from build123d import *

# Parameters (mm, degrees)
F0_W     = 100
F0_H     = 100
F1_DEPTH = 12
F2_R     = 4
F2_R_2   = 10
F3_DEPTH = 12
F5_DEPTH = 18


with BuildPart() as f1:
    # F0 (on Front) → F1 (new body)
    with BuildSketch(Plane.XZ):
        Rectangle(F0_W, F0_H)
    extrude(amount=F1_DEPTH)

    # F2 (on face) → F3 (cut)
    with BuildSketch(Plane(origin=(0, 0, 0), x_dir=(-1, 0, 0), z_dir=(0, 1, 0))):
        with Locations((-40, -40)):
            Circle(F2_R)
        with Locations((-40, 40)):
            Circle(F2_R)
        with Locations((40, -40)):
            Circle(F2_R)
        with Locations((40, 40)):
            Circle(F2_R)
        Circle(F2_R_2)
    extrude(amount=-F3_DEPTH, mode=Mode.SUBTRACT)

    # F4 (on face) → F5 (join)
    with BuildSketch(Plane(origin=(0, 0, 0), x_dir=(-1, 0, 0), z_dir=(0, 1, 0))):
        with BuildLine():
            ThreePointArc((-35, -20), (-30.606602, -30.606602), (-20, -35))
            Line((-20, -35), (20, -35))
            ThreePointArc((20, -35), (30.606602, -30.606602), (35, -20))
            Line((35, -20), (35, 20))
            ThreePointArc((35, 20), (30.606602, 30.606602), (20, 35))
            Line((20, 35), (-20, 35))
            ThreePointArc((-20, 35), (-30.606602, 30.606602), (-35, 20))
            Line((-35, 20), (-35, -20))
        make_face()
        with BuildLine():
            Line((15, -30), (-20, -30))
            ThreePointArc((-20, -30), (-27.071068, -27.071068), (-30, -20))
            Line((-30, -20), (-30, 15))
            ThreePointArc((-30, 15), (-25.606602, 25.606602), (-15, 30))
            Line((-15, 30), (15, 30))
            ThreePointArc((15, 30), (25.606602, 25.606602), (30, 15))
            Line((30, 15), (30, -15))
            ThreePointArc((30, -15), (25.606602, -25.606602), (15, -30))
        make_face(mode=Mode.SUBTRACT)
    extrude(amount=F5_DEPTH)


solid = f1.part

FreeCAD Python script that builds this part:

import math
import FreeCAD as App
import Part
import Sketcher
from FreeCAD import Vector


def add_polygon(sketch, points):
    """Adds a closed chain of lines whose ends are joined by coincident constraints."""
    first, n = sketch.GeometryCount, len(points)
    for a, b in zip(points, points[1:] + points[:1]):
        sketch.addGeometry(Part.LineSegment(App.Vector(*a, 0), App.Vector(*b, 0)), False)
    for i in range(n):
        sketch.addConstraint(Sketcher.Constraint("Coincident", first + i, 2, first + (i + 1) % n, 1))

doc = App.newDocument("Part")
body = doc.addObject("PartDesign::Body", "Body")

sketch1 = body.newObject("Sketcher::SketchObject", "Sketch")
sketch1.AttachmentSupport = (doc.getObject("XZ_Plane"), [""])
sketch1.MapMode = "FlatFace"
add_polygon(sketch1, [(-50, 50), (-50, -50), (50, -50), (50, 50)])
sketch1.addConstraint(Sketcher.Constraint("Vertical", 0))
sketch1.addConstraint(Sketcher.Constraint("Horizontal", 1))
sketch1.addConstraint(Sketcher.Constraint("Vertical", 2))
sketch1.addConstraint(Sketcher.Constraint("Horizontal", 3))
sketch1.addConstraint(Sketcher.Constraint("Symmetric", 0, 2, 2, 2, -1, 1))
sketch1.addConstraint(Sketcher.Constraint("Equal", 3, 0))
sketch1.addConstraint(Sketcher.Constraint("DistanceX", 1, 1, 1, 2, 100.0))
pad1 = body.newObject("PartDesign::Pad", "Pad")
pad1.Profile = sketch1
pad1.Length = 12

sketch2 = body.newObject("Sketcher::SketchObject", "Sketch001")
sketch2.AttachmentSupport = (doc.getObject("XZ_Plane"), [""])
sketch2.MapMode = "FlatFace"
sketch2.addGeometry(Part.Circle(Vector(40, -40, 0), Vector(0, 0, 1), 4), False)
sketch2.addGeometry(Part.Circle(Vector(40, 40, 0), Vector(0, 0, 1), 4), False)
sketch2.addGeometry(Part.Circle(Vector(-40, -40, 0), Vector(0, 0, 1), 4), False)
sketch2.addGeometry(Part.Circle(Vector(-40, 40, 0), Vector(0, 0, 1), 4), False)
sketch2.addGeometry(Part.Circle(Vector(0, 0, 0), Vector(0, 0, 1), 10), False)
sketch2.addConstraint(Sketcher.Constraint("Coincident", 4, 3, -1, 1))
sketch2.addConstraint(Sketcher.Constraint("Equal", 0, 1))
sketch2.addConstraint(Sketcher.Constraint("Equal", 1, 2))
sketch2.addConstraint(Sketcher.Constraint("Equal", 2, 3))
sketch2.addConstraint(Sketcher.Constraint("Symmetric", 1, 3, 2, 3, -1, 1))
sketch2.addConstraint(Sketcher.Constraint("Symmetric", 0, 3, 3, 3, -1, 1))
sketch2.addConstraint(Sketcher.Constraint("Symmetric", 0, 3, 2, 3, -2))
sketch2.addConstraint(Sketcher.Constraint("Diameter", 0, 8.0))
sketch2.addConstraint(Sketcher.Constraint("Diameter", 4, 20.0))
sketch2.addConstraint(Sketcher.Constraint("DistanceX", -1, 1, 0, 3, 40.0))
sketch2.addConstraint(Sketcher.Constraint("DistanceY", 0, 3, -1, 1, 40.0))
pocket1 = body.newObject("PartDesign::Pocket", "Pocket")
pocket1.Profile = sketch2
pocket1.Length = 12
pocket1.Reversed = True

sketch3 = body.newObject("Sketcher::SketchObject", "Sketch002")
sketch3.AttachmentSupport = (doc.getObject("XZ_Plane"), [""])
sketch3.MapMode = "FlatFace"
sketch3.addGeometry(Part.ArcOfCircle(Part.Circle(Vector(20, -20, 0), Vector(0, 0, 1), 15), math.radians(-90), math.radians(0)), False)
sketch3.addGeometry(Part.LineSegment(Vector(20, -35, 0), Vector(-20, -35, 0)), False)
sketch3.addGeometry(Part.ArcOfCircle(Part.Circle(Vector(-20, -20, 0), Vector(0, 0, 1), 15), math.radians(180), math.radians(270)), False)
sketch3.addGeometry(Part.LineSegment(Vector(-35, -20, 0), Vector(-35, 20, 0)), False)
sketch3.addGeometry(Part.ArcOfCircle(Part.Circle(Vector(-20, 20, 0), Vector(0, 0, 1), 15), math.radians(90), math.radians(180)), False)
sketch3.addGeometry(Part.LineSegment(Vector(-20, 35, 0), Vector(20, 35, 0)), False)
sketch3.addGeometry(Part.ArcOfCircle(Part.Circle(Vector(20, 20, 0), Vector(0, 0, 1), 15), math.radians(0), math.radians(90)), False)
sketch3.addGeometry(Part.LineSegment(Vector(35, 20, 0), Vector(35, -20, 0)), False)
sketch3.addGeometry(Part.ArcOfCircle(Part.Circle(Vector(-15, -15, 0), Vector(0, 0, 1), 15), math.radians(180), math.radians(270)), False)
sketch3.addGeometry(Part.LineSegment(Vector(-15, -30, 0), Vector(20, -30, 0)), False)
sketch3.addGeometry(Part.ArcOfCircle(Part.Circle(Vector(20, -20, 0), Vector(0, 0, 1), 10), math.radians(-90), math.radians(0)), False)
sketch3.addGeometry(Part.LineSegment(Vector(30, -20, 0), Vector(30, 15, 0)), False)
sketch3.addGeometry(Part.ArcOfCircle(Part.Circle(Vector(15, 15, 0), Vector(0, 0, 1), 15), math.radians(0), math.radians(90)), False)
sketch3.addGeometry(Part.LineSegment(Vector(15, 30, 0), Vector(-15, 30, 0)), False)
sketch3.addGeometry(Part.ArcOfCircle(Part.Circle(Vector(-15, 15, 0), Vector(0, 0, 1), 15), math.radians(90), math.radians(180)), False)
sketch3.addGeometry(Part.LineSegment(Vector(-30, 15, 0), Vector(-30, -15, 0)), False)
sketch3.addConstraint(Sketcher.Constraint("Tangent", 0, 1, 1, 1))
sketch3.addConstraint(Sketcher.Constraint("Tangent", 1, 2, 2, 2))
sketch3.addConstraint(Sketcher.Constraint("Tangent", 2, 1, 3, 1))
sketch3.addConstraint(Sketcher.Constraint("Tangent", 3, 2, 4, 2))
sketch3.addConstraint(Sketcher.Constraint("Tangent", 4, 1, 5, 1))
sketch3.addConstraint(Sketcher.Constraint("Tangent", 5, 2, 6, 2))
sketch3.addConstraint(Sketcher.Constraint("Tangent", 6, 1, 7, 1))
sketch3.addConstraint(Sketcher.Constraint("Tangent", 7, 2, 0, 2))
sketch3.addConstraint(Sketcher.Constraint("Tangent", 8, 2, 9, 1))
sketch3.addConstraint(Sketcher.Constraint("Tangent", 9, 2, 10, 1))
sketch3.addConstraint(Sketcher.Constraint("Tangent", 10, 2, 11, 1))
sketch3.addConstraint(Sketcher.Constraint("Tangent", 11, 2, 12, 1))
sketch3.addConstraint(Sketcher.Constraint("Tangent", 12, 2, 13, 1))
sketch3.addConstraint(Sketcher.Constraint("Tangent", 13, 2, 14, 1))
sketch3.addConstraint(Sketcher.Constraint("Tangent", 14, 2, 15, 1))
sketch3.addConstraint(Sketcher.Constraint("Tangent", 15, 2, 8, 1))
sketch3.addConstraint(Sketcher.Constraint("Horizontal", 1))
sketch3.addConstraint(Sketcher.Constraint("Vertical", 3))
sketch3.addConstraint(Sketcher.Constraint("Horizontal", 5))
sketch3.addConstraint(Sketcher.Constraint("Vertical", 7))
sketch3.addConstraint(Sketcher.Constraint("Horizontal", 9))
sketch3.addConstraint(Sketcher.Constraint("Vertical", 11))
sketch3.addConstraint(Sketcher.Constraint("Horizontal", 13))
sketch3.addConstraint(Sketcher.Constraint("Vertical", 15))
sketch3.addConstraint(Sketcher.Constraint("Coincident", 10, 3, 0, 3))
sketch3.addConstraint(Sketcher.Constraint("Equal", 0, 2))
sketch3.addConstraint(Sketcher.Constraint("Equal", 2, 4))
sketch3.addConstraint(Sketcher.Constraint("Equal", 4, 6))
sketch3.addConstraint(Sketcher.Constraint("Equal", 6, 8))
sketch3.addConstraint(Sketcher.Constraint("Equal", 8, 12))
sketch3.addConstraint(Sketcher.Constraint("Equal", 12, 14))
sketch3.addConstraint(Sketcher.Constraint("Symmetric", 0, 3, 4, 3, -1, 1))
sketch3.addConstraint(Sketcher.Constraint("Symmetric", 8, 3, 12, 3, -1, 1))
sketch3.addConstraint(Sketcher.Constraint("Equal", 5, 3))
sketch3.addConstraint(Sketcher.Constraint("Radius", 0, 14.999999))
sketch3.addConstraint(Sketcher.Constraint("Radius", 10, 9.999999))
sketch3.addConstraint(Sketcher.Constraint("DistanceX", 1, 2, 1, 1, 40.0))
pad2 = body.newObject("PartDesign::Pad", "Pad001")
pad2.Profile = sketch3
pad2.Length = 18
pad2.Reversed = True

doc.recompute()
